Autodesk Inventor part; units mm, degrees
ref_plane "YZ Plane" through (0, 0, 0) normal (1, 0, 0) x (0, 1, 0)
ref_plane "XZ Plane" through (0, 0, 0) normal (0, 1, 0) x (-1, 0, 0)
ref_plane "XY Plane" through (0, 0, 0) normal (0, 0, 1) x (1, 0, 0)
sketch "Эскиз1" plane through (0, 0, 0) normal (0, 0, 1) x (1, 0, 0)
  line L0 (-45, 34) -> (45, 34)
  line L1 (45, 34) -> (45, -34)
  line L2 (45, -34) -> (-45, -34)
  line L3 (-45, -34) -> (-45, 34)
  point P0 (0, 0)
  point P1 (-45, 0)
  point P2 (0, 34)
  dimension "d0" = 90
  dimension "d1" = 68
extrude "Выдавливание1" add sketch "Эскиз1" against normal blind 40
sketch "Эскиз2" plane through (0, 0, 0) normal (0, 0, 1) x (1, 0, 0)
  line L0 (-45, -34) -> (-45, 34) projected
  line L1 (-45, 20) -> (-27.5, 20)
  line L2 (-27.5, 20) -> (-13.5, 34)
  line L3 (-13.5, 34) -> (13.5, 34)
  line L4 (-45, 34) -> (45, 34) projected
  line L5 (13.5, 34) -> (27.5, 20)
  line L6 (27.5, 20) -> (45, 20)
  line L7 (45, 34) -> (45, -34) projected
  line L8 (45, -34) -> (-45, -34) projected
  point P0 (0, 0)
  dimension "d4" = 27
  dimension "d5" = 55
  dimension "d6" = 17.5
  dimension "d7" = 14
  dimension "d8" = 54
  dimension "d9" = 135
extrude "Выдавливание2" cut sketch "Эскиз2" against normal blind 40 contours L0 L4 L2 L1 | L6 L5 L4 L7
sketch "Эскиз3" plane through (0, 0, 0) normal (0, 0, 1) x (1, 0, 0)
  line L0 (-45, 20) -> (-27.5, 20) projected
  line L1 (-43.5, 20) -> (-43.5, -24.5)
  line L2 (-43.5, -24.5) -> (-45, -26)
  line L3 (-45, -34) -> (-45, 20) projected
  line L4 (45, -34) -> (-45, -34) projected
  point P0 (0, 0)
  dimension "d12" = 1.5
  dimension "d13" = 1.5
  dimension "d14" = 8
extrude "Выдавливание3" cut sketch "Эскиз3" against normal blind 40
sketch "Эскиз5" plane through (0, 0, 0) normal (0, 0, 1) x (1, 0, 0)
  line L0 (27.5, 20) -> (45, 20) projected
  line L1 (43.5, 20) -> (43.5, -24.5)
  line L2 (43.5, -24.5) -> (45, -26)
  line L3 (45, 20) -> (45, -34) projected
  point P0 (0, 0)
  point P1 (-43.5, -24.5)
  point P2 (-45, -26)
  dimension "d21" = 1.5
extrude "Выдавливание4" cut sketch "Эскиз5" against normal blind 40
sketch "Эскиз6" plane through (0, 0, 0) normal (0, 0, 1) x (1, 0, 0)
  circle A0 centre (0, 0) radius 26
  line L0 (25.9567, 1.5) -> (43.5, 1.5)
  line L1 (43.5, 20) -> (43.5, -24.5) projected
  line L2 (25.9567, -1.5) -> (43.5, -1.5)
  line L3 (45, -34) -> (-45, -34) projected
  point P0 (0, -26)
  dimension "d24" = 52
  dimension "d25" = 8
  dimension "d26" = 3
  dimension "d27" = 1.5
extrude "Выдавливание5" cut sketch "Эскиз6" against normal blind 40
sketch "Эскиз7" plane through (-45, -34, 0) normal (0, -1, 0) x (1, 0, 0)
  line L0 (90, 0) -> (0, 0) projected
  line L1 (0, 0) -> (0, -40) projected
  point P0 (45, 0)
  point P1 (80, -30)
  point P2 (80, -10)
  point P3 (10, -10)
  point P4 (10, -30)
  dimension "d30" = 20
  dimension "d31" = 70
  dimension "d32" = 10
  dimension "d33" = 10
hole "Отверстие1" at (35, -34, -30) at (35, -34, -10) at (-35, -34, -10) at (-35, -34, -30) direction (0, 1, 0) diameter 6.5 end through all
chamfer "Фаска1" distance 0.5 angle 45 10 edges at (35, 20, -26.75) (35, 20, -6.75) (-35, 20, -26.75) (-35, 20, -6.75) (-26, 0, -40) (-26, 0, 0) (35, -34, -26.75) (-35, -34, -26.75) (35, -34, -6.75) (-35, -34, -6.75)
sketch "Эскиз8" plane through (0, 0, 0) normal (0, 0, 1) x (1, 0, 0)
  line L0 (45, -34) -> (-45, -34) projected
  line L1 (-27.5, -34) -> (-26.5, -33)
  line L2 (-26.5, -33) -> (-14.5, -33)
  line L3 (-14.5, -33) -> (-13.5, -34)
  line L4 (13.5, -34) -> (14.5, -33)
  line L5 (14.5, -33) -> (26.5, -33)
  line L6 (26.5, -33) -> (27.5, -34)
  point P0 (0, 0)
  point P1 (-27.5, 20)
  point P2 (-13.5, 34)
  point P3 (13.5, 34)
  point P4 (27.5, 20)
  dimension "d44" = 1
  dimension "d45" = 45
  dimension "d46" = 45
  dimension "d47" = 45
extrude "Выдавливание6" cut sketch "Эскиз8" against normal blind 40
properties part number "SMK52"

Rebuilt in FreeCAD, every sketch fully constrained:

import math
import FreeCAD as App
import Part
import Sketcher

V = App.Vector


def edges_at(feature, points):
    """Names of the edges that pass closest to the given points."""
    edges = feature.Shape.Edges
    near = lambda p: min(range(len(edges)), key=lambda i: edges[i].distToShape(Part.Vertex(*p))[0])
    return sorted({f"Edge{near(p) + 1}" for p in points})


def add_polygon(sketch, points):
    """Adds a closed chain of lines whose ends are joined by coincident constraints."""
    first, n = sketch.GeometryCount, len(points)
    for a, b in zip(points, points[1:] + points[:1]):
        sketch.addGeometry(Part.LineSegment(App.Vector(*a, 0), App.Vector(*b, 0)), False)
    for i in range(n):
        sketch.addConstraint(Sketcher.Constraint("Coincident", first + i, 2, first + (i + 1) % n, 1))

doc = App.newDocument("Part")
body = doc.addObject("PartDesign::Body", "Body")

# Sketch on XY plane
sketch1 = body.newObject("Sketcher::SketchObject", "Sketch")
sketch1.AttachmentSupport = (doc.getObject("XY_Plane"), [""])
sketch1.MapMode = "FlatFace"
add_polygon(sketch1, [(45, 34), (-45, 34), (-45, -34), (45, -34)])  # lines 0-3
sketch1.addConstraint(Sketcher.Constraint("Horizontal", 0))
sketch1.addConstraint(Sketcher.Constraint("Vertical", 1))
sketch1.addConstraint(Sketcher.Constraint("Horizontal", 2))
sketch1.addConstraint(Sketcher.Constraint("Vertical", 3))
sketch1.addConstraint(Sketcher.Constraint("Symmetric", 0, 2, 2, 2, -1, 1))
sketch1.addConstraint(Sketcher.Constraint("DistanceX", 0, 2, 0, 1, 90.0))
sketch1.addConstraint(Sketcher.Constraint("DistanceY", 1, 2, 1, 1, 68.0))
pad1 = body.newObject("PartDesign::Pad", "Pad")
pad1.Profile = sketch1
pad1.Length = 40
pad1.Reversed = True

# Sketch on XY plane
sketch2 = body.newObject("Sketcher::SketchObject", "Sketch001")
sketch2.AttachmentSupport = (doc.getObject("XY_Plane"), [""])
sketch2.MapMode = "FlatFace"
add_polygon(sketch2, [(-45, 34), (-45, 20), (-28, 20), (-14, 34)])  # lines 0-3
add_polygon(sketch2, [(28, 20), (45, 20), (45, 34), (14, 34)])  # lines 4-7
sketch2.addConstraint(Sketcher.Constraint("Vertical", 0))
sketch2.addConstraint(Sketcher.Constraint("Horizontal", 1))
sketch2.addConstraint(Sketcher.Constraint("Horizontal", 3))
sketch2.addConstraint(Sketcher.Constraint("Horizontal", 4))
sketch2.addConstraint(Sketcher.Constraint("Vertical", 5))
sketch2.addConstraint(Sketcher.Constraint("Horizontal", 6))
sketch2.addConstraint(Sketcher.Constraint("Symmetric", 0, 2, 4, 2, -2))
sketch2.addConstraint(Sketcher.Constraint("Symmetric", 2, 2, 6, 2, -2))
sketch2.addConstraint(Sketcher.Constraint("Perpendicular", 2, 7))
sketch2.addConstraint(Sketcher.Constraint("Equal", 1, 4))
sketch2.addConstraint(Sketcher.Constraint("DistanceY", 0, 2, 0, 1, 14.0))
sketch2.addConstraint(Sketcher.Constraint("DistanceX", 1, 1, 1, 2, 17.5))
sketch2.addConstraint(Sketcher.Constraint("DistanceX", 2, 2, 6, 2, 27.0))
sketch2.addConstraint(Sketcher.Constraint("DistanceY", -1, 1, 0, 2, 20.0))
pocket1 = body.newObject("PartDesign::Pocket", "Pocket")
pocket1.Profile = sketch2
pocket1.Length = 40

# Sketch on XY plane
sketch3 = body.newObject("Sketcher::SketchObject", "Sketch002")
sketch3.AttachmentSupport = (doc.getObject("XY_Plane"), [""])
sketch3.MapMode = "FlatFace"
add_polygon(sketch3, [(-43.5, 20), (-45, 20), (-45, -26), (-43.5, -24.5)])  # lines 0-3
sketch3.addConstraint(Sketcher.Constraint("Horizontal", 0))
sketch3.addConstraint(Sketcher.Constraint("Vertical", 1))
sketch3.addConstraint(Sketcher.Constraint("Vertical", 3))
sketch3.addConstraint(Sketcher.Constraint("DistanceX", 0, 2, 0, 1, 1.5))
sketch3.addConstraint(Sketcher.Constraint("DistanceY", 1, 2, 2, 2, 1.5))
sketch3.addConstraint(Sketcher.Constraint("DistanceY", 1, 2, 1, 1, 46.0))
sketch3.addConstraint(Sketcher.Constraint("DistanceX", 0, 2, -1, 1, 45.0))
sketch3.addConstraint(Sketcher.Constraint("DistanceY", -1, 1, 0, 2, 20.0))
pocket2 = body.newObject("PartDesign::Pocket", "Pocket001")
pocket2.Profile = sketch3
pocket2.Length = 40

# Sketch on XY plane
sketch4 = body.newObject("Sketcher::SketchObject", "Sketch003")
sketch4.AttachmentSupport = (doc.getObject("XY_Plane"), [""])
sketch4.MapMode = "FlatFace"
add_polygon(sketch4, [(45, 20), (43.5, 20), (43.5, -24.5), (45, -26)])  # lines 0-3
sketch4.addConstraint(Sketcher.Constraint("Horizontal", 0))
sketch4.addConstraint(Sketcher.Constraint("Vertical", 1))
sketch4.addConstraint(Sketcher.Constraint("Vertical", 3))
sketch4.addConstraint(Sketcher.Constraint("DistanceX", 0, 2, 0, 1, 1.5))
sketch4.addConstraint(Sketcher.Constraint("DistanceY", 2, 2, 1, 2, 1.5))
sketch4.addConstraint(Sketcher.Constraint("DistanceY", 3, 1, 3, 2, 46.0))
sketch4.addConstraint(Sketcher.Constraint("DistanceY", -1, 1, 0, 2, 20.0))
sketch4.addConstraint(Sketcher.Constraint("DistanceX", -1, 1, 2, 2, 45.0))
pocket3 = body.newObject("PartDesign::Pocket", "Pocket002")
pocket3.Profile = sketch4
pocket3.Length = 40

# Sketch on XY plane
sketch5 = body.newObject("Sketcher::SketchObject", "Sketch004")
sketch5.AttachmentSupport = (doc.getObject("XY_Plane"), [""])
sketch5.MapMode = "FlatFace"
sketch5.addGeometry(Part.ArcOfCircle(Part.Circle(V(0, 0, 0), V(0, 0, 1), 26), math.radians(3), math.radians(357)), False)
sketch5.addGeometry(Part.LineSegment(V(26, -1.5, 0), V(43.5, -1.5, 0)), False)
sketch5.addGeometry(Part.LineSegment(V(43.5, -1.5, 0), V(43.5, 1.5, 0)), False)
sketch5.addGeometry(Part.LineSegment(V(43.5, 1.5, 0), V(26, 1.5, 0)), False)
sketch5.addConstraint(Sketcher.Constraint("Coincident", 0, 2, 1, 1))
sketch5.addConstraint(Sketcher.Constraint("Coincident", 1, 2, 2, 1))
sketch5.addConstraint(Sketcher.Constraint("Coincident", 2, 2, 3, 1))
sketch5.addConstraint(Sketcher.Constraint("Coincident", 3, 2, 0, 1))
sketch5.addConstraint(Sketcher.Constraint("Horizontal", 1))
sketch5.addConstraint(Sketcher.Constraint("Vertical", 2))
sketch5.addConstraint(Sketcher.Constraint("Horizontal", 3))
sketch5.addConstraint(Sketcher.Constraint("Coincident", 0, 3, -1, 1))
sketch5.addConstraint(Sketcher.Constraint("Vertical", 0, 2, 3, 2))
sketch5.addConstraint(Sketcher.Constraint("Radius", 0, 26.0))
sketch5.addConstraint(Sketcher.Constraint("DistanceY", 2, 1, 2, 2, 3.0))
sketch5.addConstraint(Sketcher.Constraint("DistanceX", -1, 1, 1, 2, 43.5))
pocket4 = body.newObject("PartDesign::Pocket", "Pocket003")
pocket4.Profile = sketch5
pocket4.Length = 40

# Sketch on XZ plane
sketch6 = body.newObject("Sketcher::SketchObject", "Sketch005")
sketch6.AttachmentSupport = (doc.getObject("XZ_Plane"), [""])
sketch6.MapMode = "FlatFace"
sketch6.AttachmentOffset = App.Placement(V(0, 0, 34), App.Rotation())
sketch6.addGeometry(Part.Circle(V(35, -30, 0), V(0, 0, 1), 3.2), False)
sketch6.addGeometry(Part.Circle(V(35, -10, 0), V(0, 0, 1), 3.2), False)
sketch6.addGeometry(Part.Circle(V(-35, -10, 0), V(0, 0, 1), 3.2), False)
sketch6.addGeometry(Part.Circle(V(-35, -30, 0), V(0, 0, 1), 3.2), False)
sketch6.addConstraint(Sketcher.Constraint("Equal", 0, 1))
sketch6.addConstraint(Sketcher.Constraint("Equal", 1, 2))
sketch6.addConstraint(Sketcher.Constraint("Equal", 2, 3))
sketch6.addConstraint(Sketcher.Constraint("Symmetric", 1, 3, 2, 3, -2))
sketch6.addConstraint(Sketcher.Constraint("Symmetric", 0, 3, 3, 3, -2))
sketch6.addConstraint(Sketcher.Constraint("Vertical", 0, 3, 1, 3))
sketch6.addConstraint(Sketcher.Constraint("Diameter", 0, 6.5))
sketch6.addConstraint(Sketcher.Constraint("DistanceX", -1, 1, 0, 3, 35.0))
sketch6.addConstraint(Sketcher.Constraint("DistanceY", 0, 3, -1, 1, 30.0))
sketch6.addConstraint(Sketcher.Constraint("DistanceY", 1, 3, -1, 1, 10.0))
doc.recompute()
hole = body.newObject("PartDesign::Hole", "Hole")
hole.Profile = sketch6
hole.ThreadType = "None"
hole.Diameter = 6.5
hole.DepthType = "ThroughAll"
doc.recompute()

chamfer = body.newObject("PartDesign::Chamfer", "Chamfer")
chamfer.Base = (hole, edges_at(hole, [
    (35, 20, -26.75),
    (35, 20, -6.75),
    (-35, 20, -26.75),
    (-35, 20, -6.75),
    (-26, 0, -40),
    (-26, 0, 0),
    (35, -34, -26.75),
    (-35, -34, -26.75),
    (35, -34, -6.75),
    (-35, -34, -6.75),
]))
chamfer.Size = 0.5

# Sketch on XY plane
sketch7 = body.newObject("Sketcher::SketchObject", "Sketch006")
sketch7.AttachmentSupport = (doc.getObject("XY_Plane"), [""])
sketch7.MapMode = "FlatFace"
add_polygon(sketch7, [(-27.5, -34), (-13.5, -34), (-14.5, -33), (-26.5, -33)])  # lines 0-3
add_polygon(sketch7, [(13.5, -34), (27.5, -34), (26.5, -33), (14.5, -33)])  # lines 4-7
sketch7.addConstraint(Sketcher.Constraint("Horizontal", 0))
sketch7.addConstraint(Sketcher.Constraint("Horizontal", 2))
sketch7.addConstraint(Sketcher.Constraint("Horizontal", 4))
sketch7.addConstraint(Sketcher.Constraint("Horizontal", 6))
sketch7.addConstraint(Sketcher.Constraint("Symmetric", 3, 2, 4, 2, -2))
sketch7.addConstraint(Sketcher.Constraint("Symmetric", 2, 2, 5, 2, -2))
sketch7.addConstraint(Sketcher.Constraint("Perpendicular", 1, 3))
sketch7.addConstraint(Sketcher.Constraint("Perpendicular", 3, 5))
sketch7.addConstraint(Sketcher.Constraint("Perpendicular", 5, 7))
sketch7.addConstraint(Sketcher.Constraint("Equal", 0, 4))
sketch7.addConstraint(Sketcher.Constraint("DistanceX", 1, 2, 0, 2, 1.0))
sketch7.addConstraint(Sketcher.Constraint("DistanceX", 0, 1, 0, 2, 14.0))
sketch7.addConstraint(Sketcher.Constraint("DistanceY", 0, 2, -1, 1, 34.0))
sketch7.addConstraint(Sketcher.Constraint("DistanceX", 0, 2, 4, 2, 41.0))
pocket5 = body.newObject("PartDesign::Pocket", "Pocket004")
pocket5.Profile = sketch7
pocket5.Length = 40

doc.recompute()
